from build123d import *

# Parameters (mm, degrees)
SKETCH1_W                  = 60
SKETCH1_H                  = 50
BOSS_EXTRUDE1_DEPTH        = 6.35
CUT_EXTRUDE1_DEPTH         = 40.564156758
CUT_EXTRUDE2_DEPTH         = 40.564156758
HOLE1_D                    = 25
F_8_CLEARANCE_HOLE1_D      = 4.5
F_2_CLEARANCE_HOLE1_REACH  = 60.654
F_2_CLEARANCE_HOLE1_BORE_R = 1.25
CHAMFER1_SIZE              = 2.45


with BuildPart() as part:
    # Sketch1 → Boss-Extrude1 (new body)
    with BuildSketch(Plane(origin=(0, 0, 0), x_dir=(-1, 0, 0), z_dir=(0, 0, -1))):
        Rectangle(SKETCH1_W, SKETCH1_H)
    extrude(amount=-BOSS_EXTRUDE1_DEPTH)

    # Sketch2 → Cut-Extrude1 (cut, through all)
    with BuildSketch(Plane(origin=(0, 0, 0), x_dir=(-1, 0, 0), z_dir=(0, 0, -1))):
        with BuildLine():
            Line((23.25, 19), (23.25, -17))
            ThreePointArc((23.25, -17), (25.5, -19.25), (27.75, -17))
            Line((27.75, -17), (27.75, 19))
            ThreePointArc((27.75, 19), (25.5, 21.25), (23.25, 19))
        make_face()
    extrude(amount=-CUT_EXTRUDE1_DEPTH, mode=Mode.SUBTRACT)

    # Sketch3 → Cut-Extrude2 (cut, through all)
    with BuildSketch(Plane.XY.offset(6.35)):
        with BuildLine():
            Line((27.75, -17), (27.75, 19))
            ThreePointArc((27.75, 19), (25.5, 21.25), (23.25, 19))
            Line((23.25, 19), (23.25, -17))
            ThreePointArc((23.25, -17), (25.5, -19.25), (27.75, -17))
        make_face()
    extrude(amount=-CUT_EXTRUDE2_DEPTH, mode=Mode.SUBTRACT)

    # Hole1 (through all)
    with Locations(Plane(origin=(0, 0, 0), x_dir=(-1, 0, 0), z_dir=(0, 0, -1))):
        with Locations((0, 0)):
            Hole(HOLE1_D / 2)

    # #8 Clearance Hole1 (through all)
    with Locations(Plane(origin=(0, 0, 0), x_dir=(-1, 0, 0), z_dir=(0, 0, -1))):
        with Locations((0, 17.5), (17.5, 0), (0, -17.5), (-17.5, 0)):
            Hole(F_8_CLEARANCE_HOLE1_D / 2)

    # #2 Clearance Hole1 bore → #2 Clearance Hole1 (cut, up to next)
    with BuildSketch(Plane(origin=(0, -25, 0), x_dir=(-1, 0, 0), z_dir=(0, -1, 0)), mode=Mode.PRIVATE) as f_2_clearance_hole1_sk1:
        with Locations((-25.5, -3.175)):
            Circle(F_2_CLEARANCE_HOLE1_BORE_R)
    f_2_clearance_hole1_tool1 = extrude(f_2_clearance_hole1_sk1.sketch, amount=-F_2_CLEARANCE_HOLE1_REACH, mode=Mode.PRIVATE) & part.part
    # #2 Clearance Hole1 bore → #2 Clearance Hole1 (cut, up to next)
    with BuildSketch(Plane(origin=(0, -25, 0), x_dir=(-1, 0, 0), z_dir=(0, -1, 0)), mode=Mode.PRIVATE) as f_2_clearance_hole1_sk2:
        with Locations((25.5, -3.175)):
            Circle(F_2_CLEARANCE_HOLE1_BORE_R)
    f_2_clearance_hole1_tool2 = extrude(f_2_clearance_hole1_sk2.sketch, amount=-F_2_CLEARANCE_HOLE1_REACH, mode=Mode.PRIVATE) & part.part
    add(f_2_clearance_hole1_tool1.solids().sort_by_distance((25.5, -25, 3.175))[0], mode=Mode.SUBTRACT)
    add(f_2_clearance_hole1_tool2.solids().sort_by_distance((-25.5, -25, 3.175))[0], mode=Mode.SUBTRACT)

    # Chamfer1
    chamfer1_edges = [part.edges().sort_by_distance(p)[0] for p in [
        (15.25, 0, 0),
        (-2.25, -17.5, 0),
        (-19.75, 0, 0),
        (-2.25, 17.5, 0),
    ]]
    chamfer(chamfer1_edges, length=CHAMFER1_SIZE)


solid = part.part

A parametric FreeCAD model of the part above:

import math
import FreeCAD as App
import Part
import Sketcher
from FreeCAD import Vector
Q = App.Units.Quantity


def edges_at(feature, points):
    """Names of the edges that pass closest to the given points."""
    edges = feature.Shape.Edges
    near = lambda p: min(range(len(edges)), key=lambda i: edges[i].distToShape(Part.Vertex(*p))[0])
    return sorted({f"Edge{near(p) + 1}" for p in points})

doc = App.newDocument("Part")
body = doc.addObject("PartDesign::Body", "Body")

# Sketch on XY plane
sketch1 = body.newObject("Sketcher::SketchObject", "Sketch")
sketch1.AttachmentSupport = (doc.getObject("XY_Plane"), [""])
sketch1.MapMode = "FlatFace"
sketch1.addGeometry(Part.LineSegment(Vector(30, 25, 0), Vector(30, -25, 0)), False)
sketch1.addGeometry(Part.LineSegment(Vector(30, -25, 0), Vector(-30, -25, 0)), False)
sketch1.addGeometry(Part.LineSegment(Vector(-30, -25, 0), Vector(-30, 25, 0)), False)
sketch1.addGeometry(Part.LineSegment(Vector(-30, 25, 0), Vector(30, 25, 0)), False)
sketch1.addConstraint(Sketcher.Constraint("Coincident", 0, 2, 1, 1))
sketch1.addConstraint(Sketcher.Constraint("Coincident", 1, 2, 2, 1))
sketch1.addConstraint(Sketcher.Constraint("Coincident", 2, 2, 3, 1))
sketch1.addConstraint(Sketcher.Constraint("Coincident", 3, 2, 0, 1))
sketch1.addConstraint(Sketcher.Constraint("Vertical", 0))
sketch1.addConstraint(Sketcher.Constraint("Horizontal", 1))
sketch1.addConstraint(Sketcher.Constraint("Vertical", 2))
sketch1.addConstraint(Sketcher.Constraint("Horizontal", 3))
sketch1.addConstraint(Sketcher.Constraint("Symmetric", 0, 2, 2, 2, -1, 1))
sketch1.addConstraint(Sketcher.Constraint("DistanceX", 1, 2, 1, 1, Q("60 mm")))
sketch1.addConstraint(Sketcher.Constraint("DistanceY", 0, 2, 0, 1, Q("50 mm")))
pad1 = body.newObject("PartDesign::Pad", "Pad")
pad1.Profile = sketch1
pad1.Length = 6.35

# Sketch on XY plane
sketch2 = body.newObject("Sketcher::SketchObject", "Sketch001")
sketch2.AttachmentSupport = (doc.getObject("XY_Plane"), [""])
sketch2.MapMode = "FlatFace"
sketch2.addGeometry(Part.LineSegment(Vector(-23.2, 19, 0), Vector(-23.2, -17, 0)), False)
sketch2.addGeometry(Part.ArcOfCircle(Part.Circle(Vector(-25.5, -17, 0), Vector(0, 0, 1), 2.2), math.radians(180), math.radians(360)), False)
sketch2.addGeometry(Part.LineSegment(Vector(-27.8, -17, 0), Vector(-27.8, 19, 0)), False)
sketch2.addGeometry(Part.ArcOfCircle(Part.Circle(Vector(-25.5, 19, 0), Vector(0, 0, 1), 2.2), math.radians(0), math.radians(180)), False)
sketch2.addConstraint(Sketcher.Constraint("Tangent", 0, 2, 1, 2))
sketch2.addConstraint(Sketcher.Constraint("Tangent", 1, 1, 2, 1))
sketch2.addConstraint(Sketcher.Constraint("Tangent", 2, 2, 3, 2))
sketch2.addConstraint(Sketcher.Constraint("Tangent", 3, 1, 0, 1))
sketch2.addConstraint(Sketcher.Constraint("Vertical", 0))
sketch2.addConstraint(Sketcher.Constraint("Vertical", 2))
sketch2.addConstraint(Sketcher.Constraint("DistanceY", 0, 2, 0, 1, Q("36 mm")))
sketch2.addConstraint(Sketcher.Constraint("Radius", 1, Q("2.25 mm")))
sketch2.addConstraint(Sketcher.Constraint("DistanceY", 1, 3, -1, 1, Q("17 mm")))
sketch2.addConstraint(Sketcher.Constraint("DistanceX", 1, 3, -1, 1, Q("25.5 mm")))
pocket1 = body.newObject("PartDesign::Pocket", "Pocket")
pocket1.Profile = sketch2
pocket1.Type = "ThroughAll"
pocket1.Reversed = True

# Sketch on XY plane
sketch3 = body.newObject("Sketcher::SketchObject", "Sketch002")
sketch3.AttachmentSupport = (doc.getObject("XY_Plane"), [""])
sketch3.MapMode = "FlatFace"
sketch3.AttachmentOffset = App.Placement(Vector(0, 0, 6.35), App.Rotation())
sketch3.addGeometry(Part.LineSegment(Vector(27.8, -17, 0), Vector(27.8, 19, 0)), False)
sketch3.addGeometry(Part.ArcOfCircle(Part.Circle(Vector(25.5, 19, 0), Vector(0, 0, 1), 2.2), math.radians(0), math.radians(180)), False)
sketch3.addGeometry(Part.LineSegment(Vector(23.2, 19, 0), Vector(23.2, -17, 0)), False)
sketch3.addGeometry(Part.ArcOfCircle(Part.Circle(Vector(25.5, -17, 0), Vector(0, 0, 1), 2.2), math.radians(180), math.radians(360)), False)
sketch3.addConstraint(Sketcher.Constraint("Tangent", 0, 2, 1, 1))
sketch3.addConstraint(Sketcher.Constraint("Tangent", 1, 2, 2, 1))
sketch3.addConstraint(Sketcher.Constraint("Tangent", 2, 2, 3, 1))
sketch3.addConstraint(Sketcher.Constraint("Tangent", 3, 2, 0, 1))
sketch3.addConstraint(Sketcher.Constraint("Vertical", 0))
sketch3.addConstraint(Sketcher.Constraint("Vertical", 2))
sketch3.addConstraint(Sketcher.Constraint("DistanceY", 0, 1, 0, 2, Q("36 mm")))
sketch3.addConstraint(Sketcher.Constraint("Radius", 1, Q("2.25 mm")))
sketch3.addConstraint(Sketcher.Constraint("DistanceY", -1, 1, 1, 3, Q("19 mm")))
sketch3.addConstraint(Sketcher.Constraint("DistanceX", -1, 1, 1, 3, Q("25.5 mm")))
pocket2 = body.newObject("PartDesign::Pocket", "Pocket001")
pocket2.Profile = sketch3
pocket2.Type = "ThroughAll"

# Sketch on XY plane
sketch4 = body.newObject("Sketcher::SketchObject", "Sketch003")
sketch4.AttachmentSupport = (doc.getObject("XY_Plane"), [""])
sketch4.MapMode = "FlatFace"
sketch4.addGeometry(Part.Circle(Vector(0, 0, 0), Vector(0, 0, 1), 12), False)
sketch4.addConstraint(Sketcher.Constraint("Coincident", 0, 3, -1, 1))
sketch4.addConstraint(Sketcher.Constraint("Diameter", 0, Q("25 mm")))
doc.recompute()
hole = body.newObject("PartDesign::Hole", "Hole")
hole.Profile = sketch4
hole.ThreadType = "None"
hole.Diameter = 25
hole.DepthType = "ThroughAll"
hole.Reversed = True

# Sketch on XY plane
sketch5 = body.newObject("Sketcher::SketchObject", "Sketch004")
sketch5.AttachmentSupport = (doc.getObject("XY_Plane"), [""])
sketch5.MapMode = "FlatFace"
sketch5.addGeometry(Part.Circle(Vector(0, 17.5, 0), Vector(0, 0, 1), 2.2), False)
sketch5.addGeometry(Part.Circle(Vector(-17.5, 0, 0), Vector(0, 0, 1), 2.2), False)
sketch5.addGeometry(Part.Circle(Vector(0, -17.5, 0), Vector(0, 0, 1), 2.2), False)
sketch5.addGeometry(Part.Circle(Vector(17.5, 0, 0), Vector(0, 0, 1), 2.2), False)
sketch5.addConstraint(Sketcher.Constraint("Equal", 0, 1))
sketch5.addConstraint(Sketcher.Constraint("Equal", 1, 2))
sketch5.addConstraint(Sketcher.Constraint("Equal", 2, 3))
sketch5.addConstraint(Sketcher.Constraint("Symmetric", 0, 3, 2, 3, -1, 1))
sketch5.addConstraint(Sketcher.Constraint("Symmetric", 1, 3, 3, 3, -1, 1))
sketch5.addConstraint(Sketcher.Constraint("PointOnObject", 0, 3, -2))
sketch5.addConstraint(Sketcher.Constraint("PointOnObject", 1, 3, -1))
sketch5.addConstraint(Sketcher.Constraint("Diameter", 0, Q("4.5 mm")))
sketch5.addConstraint(Sketcher.Constraint("DistanceY", 2, 3, 0, 3, Q("35 mm")))
sketch5.addConstraint(Sketcher.Constraint("DistanceX", 1, 3, 3, 3, Q("35 mm")))
doc.recompute()
hole2 = body.newObject("PartDesign::Hole", "Hole001")
hole2.Profile = sketch5
hole2.ThreadType = "None"
hole2.Diameter = 4.5
hole2.DepthType = "ThroughAll"
hole2.Reversed = True

# Sketch on XZ plane
sketch6 = body.newObject("Sketcher::SketchObject", "Sketch005")
sketch6.AttachmentSupport = (doc.getObject("XZ_Plane"), [""])
sketch6.MapMode = "FlatFace"
sketch6.AttachmentOffset = App.Placement(Vector(0, 0, 25), App.Rotation())
sketch6.addGeometry(Part.Circle(Vector(25.5, 3.2, 0), Vector(0, 0, 1), 1.2), False)
sketch6.addConstraint(Sketcher.Constraint("Diameter", 0, Q("2.5 mm")))
sketch6.addConstraint(Sketcher.Constraint("DistanceX", -1, 1, 0, 3, Q("25.5 mm")))
sketch6.addConstraint(Sketcher.Constraint("DistanceY", -1, 1, 0, 3, Q("3.175 mm")))
pocket3 = body.newObject("PartDesign::Pocket", "Pocket002")
pocket3.Profile = sketch6
pocket3.Type = "UpToFirst"

# Sketch on XZ plane
sketch7 = body.newObject("Sketcher::SketchObject", "Sketch006")
sketch7.AttachmentSupport = (doc.getObject("XZ_Plane"), [""])
sketch7.MapMode = "FlatFace"
sketch7.AttachmentOffset = App.Placement(Vector(0, 0, 25), App.Rotation())
sketch7.addGeometry(Part.Circle(Vector(-25.5, 3.2, 0), Vector(0, 0, 1), 1.2), False)
sketch7.addConstraint(Sketcher.Constraint("Diameter", 0, Q("2.5 mm")))
sketch7.addConstraint(Sketcher.Constraint("DistanceX", 0, 3, -1, 1, Q("25.5 mm")))
sketch7.addConstraint(Sketcher.Constraint("DistanceY", -1, 1, 0, 3, Q("3.175 mm")))
pocket4 = body.newObject("PartDesign::Pocket", "Pocket003")
pocket4.Profile = sketch7
pocket4.Type = "UpToFirst"
doc.recompute()

chamfer = body.newObject("PartDesign::Chamfer", "Chamfer")
chamfer.Base = (pocket4, edges_at(pocket4, [
    (15.25, 0, 0),
    (-2.25, -17.5, 0),
    (-19.75, 0, 0),
    (-2.25, 17.5, 0),
]))
chamfer.Size = 2.45

doc.recompute()
